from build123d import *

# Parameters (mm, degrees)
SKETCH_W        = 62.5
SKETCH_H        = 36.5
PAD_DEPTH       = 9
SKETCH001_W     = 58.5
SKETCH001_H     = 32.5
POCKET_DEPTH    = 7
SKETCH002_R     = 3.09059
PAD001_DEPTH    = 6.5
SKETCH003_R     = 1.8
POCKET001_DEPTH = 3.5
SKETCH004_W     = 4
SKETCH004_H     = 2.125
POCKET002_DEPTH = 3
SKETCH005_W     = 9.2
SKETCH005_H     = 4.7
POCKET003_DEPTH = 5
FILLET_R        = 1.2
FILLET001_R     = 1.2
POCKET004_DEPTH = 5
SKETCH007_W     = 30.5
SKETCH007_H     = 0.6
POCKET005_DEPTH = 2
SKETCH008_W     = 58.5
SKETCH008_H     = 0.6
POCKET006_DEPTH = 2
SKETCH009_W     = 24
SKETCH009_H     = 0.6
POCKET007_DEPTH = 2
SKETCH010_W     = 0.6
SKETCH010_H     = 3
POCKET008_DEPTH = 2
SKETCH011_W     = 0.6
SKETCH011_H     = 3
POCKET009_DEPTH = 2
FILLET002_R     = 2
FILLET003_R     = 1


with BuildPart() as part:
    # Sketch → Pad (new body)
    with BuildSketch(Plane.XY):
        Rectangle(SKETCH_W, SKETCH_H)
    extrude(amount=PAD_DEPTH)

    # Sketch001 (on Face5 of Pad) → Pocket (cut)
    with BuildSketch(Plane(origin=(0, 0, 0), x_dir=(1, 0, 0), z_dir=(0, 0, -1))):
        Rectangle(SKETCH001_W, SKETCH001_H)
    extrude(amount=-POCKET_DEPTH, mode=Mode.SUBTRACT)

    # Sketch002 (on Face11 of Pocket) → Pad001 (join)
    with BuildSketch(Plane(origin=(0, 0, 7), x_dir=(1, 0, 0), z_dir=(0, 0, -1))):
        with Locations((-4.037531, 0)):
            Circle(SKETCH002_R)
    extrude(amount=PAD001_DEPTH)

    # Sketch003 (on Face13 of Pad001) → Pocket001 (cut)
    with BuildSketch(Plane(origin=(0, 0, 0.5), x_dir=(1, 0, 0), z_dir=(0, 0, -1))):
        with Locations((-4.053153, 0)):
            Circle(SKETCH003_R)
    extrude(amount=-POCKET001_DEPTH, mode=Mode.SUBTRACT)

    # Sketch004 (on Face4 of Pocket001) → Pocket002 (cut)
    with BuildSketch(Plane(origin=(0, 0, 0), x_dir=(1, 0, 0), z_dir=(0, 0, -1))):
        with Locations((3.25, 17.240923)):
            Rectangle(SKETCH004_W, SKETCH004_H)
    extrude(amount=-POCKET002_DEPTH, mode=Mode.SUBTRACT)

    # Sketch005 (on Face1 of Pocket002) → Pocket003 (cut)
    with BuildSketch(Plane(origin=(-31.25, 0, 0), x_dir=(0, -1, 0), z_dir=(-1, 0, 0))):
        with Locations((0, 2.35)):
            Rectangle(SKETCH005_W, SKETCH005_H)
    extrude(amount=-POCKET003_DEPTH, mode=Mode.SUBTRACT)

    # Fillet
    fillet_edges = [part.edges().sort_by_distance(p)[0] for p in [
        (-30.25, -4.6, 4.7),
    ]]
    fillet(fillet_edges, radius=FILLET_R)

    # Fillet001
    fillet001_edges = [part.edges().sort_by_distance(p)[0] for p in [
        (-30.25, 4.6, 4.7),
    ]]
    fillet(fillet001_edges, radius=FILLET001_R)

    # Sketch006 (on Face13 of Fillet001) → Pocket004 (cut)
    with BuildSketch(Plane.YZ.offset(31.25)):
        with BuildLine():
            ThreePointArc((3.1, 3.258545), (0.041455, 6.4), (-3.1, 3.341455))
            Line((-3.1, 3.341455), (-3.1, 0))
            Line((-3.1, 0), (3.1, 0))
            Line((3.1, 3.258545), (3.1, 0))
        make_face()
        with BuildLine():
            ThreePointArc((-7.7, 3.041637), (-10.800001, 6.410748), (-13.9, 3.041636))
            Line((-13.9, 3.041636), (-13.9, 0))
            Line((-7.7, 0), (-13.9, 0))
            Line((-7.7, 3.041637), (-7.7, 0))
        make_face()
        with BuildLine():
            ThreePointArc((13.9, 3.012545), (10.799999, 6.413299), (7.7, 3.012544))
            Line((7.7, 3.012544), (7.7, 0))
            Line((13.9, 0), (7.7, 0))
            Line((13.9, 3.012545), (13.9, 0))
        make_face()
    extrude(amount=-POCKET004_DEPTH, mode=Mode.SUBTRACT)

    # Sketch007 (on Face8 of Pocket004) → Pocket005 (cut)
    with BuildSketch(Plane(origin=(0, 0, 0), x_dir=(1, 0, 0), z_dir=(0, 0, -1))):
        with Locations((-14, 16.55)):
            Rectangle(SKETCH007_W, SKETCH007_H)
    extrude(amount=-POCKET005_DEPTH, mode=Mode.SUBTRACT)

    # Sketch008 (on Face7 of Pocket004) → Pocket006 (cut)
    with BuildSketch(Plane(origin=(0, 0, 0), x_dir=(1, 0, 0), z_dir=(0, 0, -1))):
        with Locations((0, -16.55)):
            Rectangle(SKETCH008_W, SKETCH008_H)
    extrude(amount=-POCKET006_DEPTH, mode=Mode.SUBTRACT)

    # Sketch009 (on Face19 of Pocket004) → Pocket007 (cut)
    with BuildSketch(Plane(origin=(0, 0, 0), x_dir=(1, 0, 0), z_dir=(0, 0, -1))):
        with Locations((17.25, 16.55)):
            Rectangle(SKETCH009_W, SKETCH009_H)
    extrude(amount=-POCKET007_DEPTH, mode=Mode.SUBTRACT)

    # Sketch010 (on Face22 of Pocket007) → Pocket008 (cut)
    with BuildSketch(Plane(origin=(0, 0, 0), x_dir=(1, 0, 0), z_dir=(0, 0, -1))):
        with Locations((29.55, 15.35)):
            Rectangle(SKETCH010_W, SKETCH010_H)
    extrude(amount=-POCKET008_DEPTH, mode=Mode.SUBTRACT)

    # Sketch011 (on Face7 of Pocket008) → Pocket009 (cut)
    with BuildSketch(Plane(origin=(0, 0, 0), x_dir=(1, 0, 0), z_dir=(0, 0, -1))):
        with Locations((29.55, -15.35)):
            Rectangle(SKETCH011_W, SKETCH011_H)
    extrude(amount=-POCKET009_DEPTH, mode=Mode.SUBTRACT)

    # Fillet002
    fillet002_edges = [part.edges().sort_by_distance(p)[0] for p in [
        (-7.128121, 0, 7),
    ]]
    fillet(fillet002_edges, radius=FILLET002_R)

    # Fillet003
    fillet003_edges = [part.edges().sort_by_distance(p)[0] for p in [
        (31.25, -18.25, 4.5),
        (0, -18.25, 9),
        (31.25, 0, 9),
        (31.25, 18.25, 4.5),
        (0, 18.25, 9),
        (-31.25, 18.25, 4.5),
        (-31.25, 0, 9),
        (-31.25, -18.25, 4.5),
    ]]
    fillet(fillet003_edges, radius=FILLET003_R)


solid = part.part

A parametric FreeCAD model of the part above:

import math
import FreeCAD as App
import Part
import Sketcher
Q = App.Units.Quantity


def edges_at(feature, points):
    """Names of the edges that pass closest to the given points."""
    edges = feature.Shape.Edges
    near = lambda p: min(range(len(edges)), key=lambda i: edges[i].distToShape(Part.Vertex(*p))[0])
    return sorted({f"Edge{near(p) + 1}" for p in points})


def add_polygon(sketch, points):
    """Adds a closed chain of lines whose ends are joined by coincident constraints."""
    first, n = sketch.GeometryCount, len(points)
    for a, b in zip(points, points[1:] + points[:1]):
        sketch.addGeometry(Part.LineSegment(App.Vector(*a, 0), App.Vector(*b, 0)), False)
    for i in range(n):
        sketch.addConstraint(Sketcher.Constraint("Coincident", first + i, 2, first + (i + 1) % n, 1))

doc = App.newDocument("Part")
body = doc.addObject("PartDesign::Body", "Body")

# Sketch on XY plane
sketch1 = body.newObject("Sketcher::SketchObject", "Sketch")
sketch1.AttachmentSupport = (doc.getObject("XY_Plane"), [""])
sketch1.MapMode = "FlatFace"
add_polygon(sketch1, [(-31, 18), (-31, -18), (31, -18), (31, 18)])  # lines 0-3
sketch1.addConstraint(Sketcher.Constraint("Vertical", 0))
sketch1.addConstraint(Sketcher.Constraint("Horizontal", 1))
sketch1.addConstraint(Sketcher.Constraint("Vertical", 2))
sketch1.addConstraint(Sketcher.Constraint("Horizontal", 3))
sketch1.addConstraint(Sketcher.Constraint("Symmetric", 0, 2, 2, 2, -1, 1))
sketch1.addConstraint(Sketcher.Constraint("DistanceX", 1, 1, 1, 2, Q("62.5 mm")))
sketch1.addConstraint(Sketcher.Constraint("DistanceY", 0, 2, 0, 1, Q("36.5 mm")))
pad1 = body.newObject("PartDesign::Pad", "Pad")
pad1.Profile = sketch1
pad1.Length = 9

# Sketch on XY plane
sketch2 = body.newObject("Sketcher::SketchObject", "Sketch001")
sketch2.AttachmentSupport = (doc.getObject("XY_Plane"), [""])
sketch2.MapMode = "FlatFace"
add_polygon(sketch2, [(-29, -16), (-29, 16), (29, 16), (29, -16)])  # lines 0-3
sketch2.addConstraint(Sketcher.Constraint("Vertical", 0))
sketch2.addConstraint(Sketcher.Constraint("Horizontal", 1))
sketch2.addConstraint(Sketcher.Constraint("Vertical", 2))
sketch2.addConstraint(Sketcher.Constraint("Horizontal", 3))
sketch2.addConstraint(Sketcher.Constraint("Symmetric", 0, 2, 2, 2, -1, 1))
sketch2.addConstraint(Sketcher.Constraint("DistanceX", 1, 1, 1, 2, Q("58.5 mm")))
sketch2.addConstraint(Sketcher.Constraint("DistanceY", 0, 1, 0, 2, Q("32.5 mm")))
pocket1 = body.newObject("PartDesign::Pocket", "Pocket")
pocket1.Profile = sketch2
pocket1.Length = 7
pocket1.Reversed = True

# Sketch on XY plane
sketch3 = body.newObject("Sketcher::SketchObject", "Sketch002")
sketch3.AttachmentSupport = (doc.getObject("XY_Plane"), [""])
sketch3.MapMode = "FlatFace"
sketch3.AttachmentOffset = App.Placement(App.Vector(0, 0, 7), App.Rotation())
sketch3.addGeometry(Part.Circle(App.Vector(-4, 0, 0), App.Vector(0, 0, 1), 3.1), False)
sketch3.addConstraint(Sketcher.Constraint("PointOnObject", 0, 3, -1))
sketch3.addConstraint(Sketcher.Constraint("Diameter", 0, Q("6.18118 mm")))
sketch3.addConstraint(Sketcher.Constraint("DistanceX", 0, 3, -1, 1, Q("4.037531 mm")))
pad2 = body.newObject("PartDesign::Pad", "Pad001")
pad2.Profile = sketch3
pad2.Length = 6.5
pad2.Reversed = True

# Sketch on XY plane
sketch4 = body.newObject("Sketcher::SketchObject", "Sketch003")
sketch4.AttachmentSupport = (doc.getObject("XY_Plane"), [""])
sketch4.MapMode = "FlatFace"
sketch4.AttachmentOffset = App.Placement(App.Vector(0, 0, 0.5), App.Rotation())
sketch4.addGeometry(Part.Circle(App.Vector(-4.1, 0, 0), App.Vector(0, 0, 1), 1.8), False)
sketch4.addConstraint(Sketcher.Constraint("PointOnObject", 0, 3, -1))
sketch4.addConstraint(Sketcher.Constraint("Diameter", 0, Q("3.6 mm")))
sketch4.addConstraint(Sketcher.Constraint("DistanceX", 0, 3, -1, 1, Q("4.053153 mm")))
pocket2 = body.newObject("PartDesign::Pocket", "Pocket001")
pocket2.Profile = sketch4
pocket2.Length = 3.5
pocket2.Reversed = True

# Sketch on XY plane
sketch5 = body.newObject("Sketcher::SketchObject", "Sketch004")
sketch5.AttachmentSupport = (doc.getObject("XY_Plane"), [""])
sketch5.MapMode = "FlatFace"
add_polygon(sketch5, [(1.2, -18.3), (1.2, -16.2), (5.2, -16.2), (5.2, -18.3)])  # lines 0-3
sketch5.addConstraint(Sketcher.Constraint("Vertical", 0))
sketch5.addConstraint(Sketcher.Constraint("Horizontal", 1))
sketch5.addConstraint(Sketcher.Constraint("Vertical", 2))
sketch5.addConstraint(Sketcher.Constraint("Horizontal", 3))
sketch5.addConstraint(Sketcher.Constraint("DistanceX", 1, 1, 1, 2, Q("4 mm")))
sketch5.addConstraint(Sketcher.Constraint("DistanceY", 0, 1, 0, 2, Q("2.125 mm")))
sketch5.addConstraint(Sketcher.Constraint("DistanceX", -1, 1, 0, 2, Q("1.25 mm")))
sketch5.addConstraint(Sketcher.Constraint("DistanceY", 0, 2, -1, 1, Q("16.178423 mm")))
pocket3 = body.newObject("PartDesign::Pocket", "Pocket002")
pocket3.Profile = sketch5
pocket3.Length = 3
pocket3.Reversed = True

# Sketch on YZ plane
sketch6 = body.newObject("Sketcher::SketchObject", "Sketch005")
sketch6.AttachmentSupport = (doc.getObject("YZ_Plane"), [""])
sketch6.MapMode = "FlatFace"
sketch6.AttachmentOffset = App.Placement(App.Vector(0, 0, -31.25), App.Rotation())
add_polygon(sketch6, [(4.6, 4.7), (4.6, 0), (-4.6, 0), (-4.6, 4.7)])  # lines 0-3
sketch6.addConstraint(Sketcher.Constraint("Vertical", 0))
sketch6.addConstraint(Sketcher.Constraint("Horizontal", 1))
sketch6.addConstraint(Sketcher.Constraint("Vertical", 2))
sketch6.addConstraint(Sketcher.Constraint("Horizontal", 3))
sketch6.addConstraint(Sketcher.Constraint("Symmetric", 0, 2, 1, 2, -1, 1))
sketch6.addConstraint(Sketcher.Constraint("DistanceX", 1, 2, 1, 1, Q("9.2 mm")))
sketch6.addConstraint(Sketcher.Constraint("DistanceY", 0, 2, 0, 1, Q("4.7 mm")))
pocket4 = body.newObject("PartDesign::Pocket", "Pocket003")
pocket4.Profile = sketch6
pocket4.Length = 5
pocket4.Reversed = True
doc.recompute()

fillet = body.newObject("PartDesign::Fillet", "Fillet")
fillet.Base = (pocket4, edges_at(pocket4, [(-30.25, -4.6, 4.7)]))
fillet.Radius = 1.2
doc.recompute()

fillet2 = body.newObject("PartDesign::Fillet", "Fillet001")
fillet2.Base = (fillet, edges_at(fillet, [(-30.25, 4.6, 4.7)]))
fillet2.Radius = 1.2

# Sketch on YZ plane
sketch7 = body.newObject("Sketcher::SketchObject", "Sketch006")
sketch7.AttachmentSupport = (doc.getObject("YZ_Plane"), [""])
sketch7.MapMode = "FlatFace"
sketch7.AttachmentOffset = App.Placement(App.Vector(0, 0, 31.25), App.Rotation())
sketch7.addGeometry(Part.ArcOfCircle(Part.Circle(App.Vector(0, 3.3, 0), App.Vector(0, 0, 1), 3.1), math.radians(-1), math.radians(179)), False)
sketch7.addGeometry(Part.LineSegment(App.Vector(-3.1, 3.3, 0), App.Vector(-3.1, 0, 0)), False)
sketch7.addGeometry(Part.LineSegment(App.Vector(-3.1, 0, 0), App.Vector(3.1, 0, 0)), False)
sketch7.addGeometry(Part.LineSegment(App.Vector(3.1, 0, 0), App.Vector(3.1, 3.3, 0)), False)
sketch7.addGeometry(Part.ArcOfCircle(Part.Circle(App.Vector(-10.8, 3.3, 0), App.Vector(0, 0, 1), 3.1), math.radians(-5), math.radians(185)), False)
sketch7.addGeometry(Part.LineSegment(App.Vector(-13.9, 3, 0), App.Vector(-13.9, 0, 0)), False)
sketch7.addGeometry(Part.LineSegment(App.Vector(-13.9, 0, 0), App.Vector(-7.7, 0, 0)), False)
sketch7.addGeometry(Part.LineSegment(App.Vector(-7.7, 0, 0), App.Vector(-7.7, 3, 0)), False)
sketch7.addGeometry(Part.ArcOfCircle(Part.Circle(App.Vector(10.8, 3.3, 0), App.Vector(0, 0, 1), 3.1), math.radians(-5), math.radians(185)), False)
sketch7.addGeometry(Part.LineSegment(App.Vector(7.7, 3, 0), App.Vector(7.7, 0, 0)), False)
sketch7.addGeometry(Part.LineSegment(App.Vector(7.7, 0, 0), App.Vector(13.9, 0, 0)), False)
sketch7.addGeometry(Part.LineSegment(App.Vector(13.9, 0, 0), App.Vector(13.9, 3, 0)), False)
sketch7.addConstraint(Sketcher.Constraint("Coincident", 0, 2, 1, 1))
sketch7.addConstraint(Sketcher.Constraint("Coincident", 1, 2, 2, 1))
sketch7.addConstraint(Sketcher.Constraint("Coincident", 2, 2, 3, 1))
sketch7.addConstraint(Sketcher.Constraint("Coincident", 3, 2, 0, 1))
sketch7.addConstraint(Sketcher.Constraint("Coincident", 4, 2, 5, 1))
sketch7.addConstraint(Sketcher.Constraint("Coincident", 5, 2, 6, 1))
sketch7.addConstraint(Sketcher.Constraint("Coincident", 6, 2, 7, 1))
sketch7.addConstraint(Sketcher.Constraint("Coincident", 7, 2, 4, 1))
sketch7.addConstraint(Sketcher.Constraint("Coincident", 8, 2, 9, 1))
sketch7.addConstraint(Sketcher.Constraint("Coincident", 9, 2, 10, 1))
sketch7.addConstraint(Sketcher.Constraint("Coincident", 10, 2, 11, 1))
sketch7.addConstraint(Sketcher.Constraint("Coincident", 11, 2, 8, 1))
sketch7.addConstraint(Sketcher.Constraint("Vertical", 1))
sketch7.addConstraint(Sketcher.Constraint("Horizontal", 2))
sketch7.addConstraint(Sketcher.Constraint("Vertical", 3))
sketch7.addConstraint(Sketcher.Constraint("Vertical", 5))
sketch7.addConstraint(Sketcher.Constraint("Horizontal", 6))
sketch7.addConstraint(Sketcher.Constraint("Vertical", 7))
sketch7.addConstraint(Sketcher.Constraint("Vertical", 9))
sketch7.addConstraint(Sketcher.Constraint("Horizontal", 10))
sketch7.addConstraint(Sketcher.Constraint("Vertical", 11))
sketch7.addConstraint(Sketcher.Constraint("Symmetric", 1, 2, 2, 2, -1, 1))
sketch7.addConstraint(Sketcher.Constraint("Symmetric", 6, 2, 9, 2, -1, 1))
sketch7.addConstraint(Sketcher.Constraint("Symmetric", 4, 3, 8, 3, -2))
sketch7.addConstraint(Sketcher.Constraint("Symmetric", 5, 2, 10, 2, -2))
sketch7.addConstraint(Sketcher.Constraint("PointOnObject", 0, 3, -2))
sketch7.addConstraint(Sketcher.Constraint("Horizontal", 0, 3, 4, 3))
sketch7.addConstraint(Sketcher.Constraint("Horizontal", 4, 2, 7, 2))
sketch7.addConstraint(Sketcher.Constraint("Equal", 2, 6))
sketch7.addConstraint(Sketcher.Constraint("DistanceX", 2, 1, 2, 2, Q("6.2 mm")))
sketch7.addConstraint(Sketcher.Constraint("DistanceX", 4, 2, 3, 2, Q("17 mm")))
sketch7.addConstraint(Sketcher.Constraint("DistanceY", -1, 1, 0, 3, Q("3.3 mm")))
sketch7.addConstraint(Sketcher.Constraint("Radius", 8, Q("3.113299 mm")))
sketch7.addConstraint(Sketcher.Constraint("Radius", 0, Q("3.100277 mm")))
sketch7.addConstraint(Sketcher.Constraint("Radius", 4, Q("3.110748 mm")))
pocket5 = body.newObject("PartDesign::Pocket", "Pocket004")
pocket5.Profile = sketch7
pocket5.Length = 5

# Sketch on XY plane
sketch8 = body.newObject("Sketcher::SketchObject", "Sketch007")
sketch8.AttachmentSupport = (doc.getObject("XY_Plane"), [""])
sketch8.MapMode = "FlatFace"
add_polygon(sketch8, [(-29.2, -16.9), (-29.2, -16.2), (1.2, -16.2), (1.2, -16.9)])  # lines 0-3
sketch8.addConstraint(Sketcher.Constraint("Vertical", 0))
sketch8.addConstraint(Sketcher.Constraint("Horizontal", 1))
sketch8.addConstraint(Sketcher.Constraint("Vertical", 2))
sketch8.addConstraint(Sketcher.Constraint("Horizontal", 3))
sketch8.addConstraint(Sketcher.Constraint("DistanceX", 1, 1, 1, 2, Q("30.5 mm")))
sketch8.addConstraint(Sketcher.Constraint("DistanceY", 0, 1, 0, 2, Q("0.6 mm")))
sketch8.addConstraint(Sketcher.Constraint("DistanceX", 0, 2, -1, 1, Q("29.25 mm")))
sketch8.addConstraint(Sketcher.Constraint("DistanceY", 0, 2, -1, 1, Q("16.25 mm")))
pocket6 = body.newObject("PartDesign::Pocket", "Pocket005")
pocket6.Profile = sketch8
pocket6.Length = 2
pocket6.Reversed = True

# Sketch on XY plane
sketch9 = body.newObject("Sketcher::SketchObject", "Sketch008")
sketch9.AttachmentSupport = (doc.getObject("XY_Plane"), [""])
sketch9.MapMode = "FlatFace"
add_polygon(sketch9, [(-29.2, 16.2), (-29.2, 16.9), (29.2, 16.9), (29.2, 16.2)])  # lines 0-3
sketch9.addConstraint(Sketcher.Constraint("Vertical", 0))
sketch9.addConstraint(Sketcher.Constraint("Horizontal", 1))
sketch9.addConstraint(Sketcher.Constraint("Vertical", 2))
sketch9.addConstraint(Sketcher.Constraint("Horizontal", 3))
sketch9.addConstraint(Sketcher.Constraint("DistanceX", 1, 1, 1, 2, Q("58.5 mm")))
sketch9.addConstraint(Sketcher.Constraint("DistanceY", 0, 1, 0, 2, Q("0.6 mm")))
sketch9.addConstraint(Sketcher.Constraint("DistanceX", 0, 2, -1, 1, Q("29.25 mm")))
sketch9.addConstraint(Sketcher.Constraint("DistanceY", -1, 1, 0, 2, Q("16.85 mm")))
pocket7 = body.newObject("PartDesign::Pocket", "Pocket006")
pocket7.Profile = sketch9
pocket7.Length = 2
pocket7.Reversed = True

# Sketch on XY plane
sketch10 = body.newObject("Sketcher::SketchObject", "Sketch009")
sketch10.AttachmentSupport = (doc.getObject("XY_Plane"), [""])
sketch10.MapMode = "FlatFace"
add_polygon(sketch10, [(5.2, -16.9), (5.2, -16.2), (29.2, -16.2), (29.2, -16.9)])  # lines 0-3
sketch10.addConstraint(Sketcher.Constraint("Vertical", 0))
sketch10.addConstraint(Sketcher.Constraint("Horizontal", 1))
sketch10.addConstraint(Sketcher.Constraint("Vertical", 2))
sketch10.addConstraint(Sketcher.Constraint("Horizontal", 3))
sketch10.addConstraint(Sketcher.Constraint("DistanceX", 1, 1, 1, 2, Q("24 mm")))
sketch10.addConstraint(Sketcher.Constraint("DistanceY", 0, 1, 0, 2, Q("0.6 mm")))
sketch10.addConstraint(Sketcher.Constraint("DistanceX", -1, 1, 0, 2, Q("5.25 mm")))
sketch10.addConstraint(Sketcher.Constraint("DistanceY", 0, 2, -1, 1, Q("16.25 mm")))
pocket8 = body.newObject("PartDesign::Pocket", "Pocket007")
pocket8.Profile = sketch10
pocket8.Length = 2
pocket8.Reversed = True

# Sketch on XY plane
sketch11 = body.newObject("Sketcher::SketchObject", "Sketch010")
sketch11.AttachmentSupport = (doc.getObject("XY_Plane"), [""])
sketch11.MapMode = "FlatFace"
add_polygon(sketch11, [(29.2, -16.9), (29.2, -13.8), (29.9, -13.8), (29.9, -16.9)])  # lines 0-3
sketch11.addConstraint(Sketcher.Constraint("Vertical", 0))
sketch11.addConstraint(Sketcher.Constraint("Horizontal", 1))
sketch11.addConstraint(Sketcher.Constraint("Vertical", 2))
sketch11.addConstraint(Sketcher.Constraint("Horizontal", 3))
sketch11.addConstraint(Sketcher.Constraint("DistanceY", 0, 1, 0, 2, Q("3 mm")))
sketch11.addConstraint(Sketcher.Constraint("DistanceX", 1, 1, 1, 2, Q("0.6 mm")))
sketch11.addConstraint(Sketcher.Constraint("DistanceX", -1, 1, 0, 2, Q("29.25 mm")))
sketch11.addConstraint(Sketcher.Constraint("DistanceY", 0, 2, -1, 1, Q("13.85 mm")))
pocket9 = body.newObject("PartDesign::Pocket", "Pocket008")
pocket9.Profile = sketch11
pocket9.Length = 2
pocket9.Reversed = True

# Sketch on XY plane
sketch12 = body.newObject("Sketcher::SketchObject", "Sketch011")
sketch12.AttachmentSupport = (doc.getObject("XY_Plane"), [""])
sketch12.MapMode = "FlatFace"
add_polygon(sketch12, [(29.2, 13.8), (29.2, 16.9), (29.9, 16.9), (29.9, 13.8)])  # lines 0-3
sketch12.addConstraint(Sketcher.Constraint("Vertical", 0))
sketch12.addConstraint(Sketcher.Constraint("Horizontal", 1))
sketch12.addConstraint(Sketcher.Constraint("Vertical", 2))
sketch12.addConstraint(Sketcher.Constraint("Horizontal", 3))
sketch12.addConstraint(Sketcher.Constraint("DistanceY", 0, 1, 0, 2, Q("3 mm")))
sketch12.addConstraint(Sketcher.Constraint("DistanceX", 1, 1, 1, 2, Q("0.6 mm")))
sketch12.addConstraint(Sketcher.Constraint("DistanceX", -1, 1, 0, 2, Q("29.25 mm")))
sketch12.addConstraint(Sketcher.Constraint("DistanceY", -1, 1, 0, 2, Q("16.85 mm")))
pocket10 = body.newObject("PartDesign::Pocket", "Pocket009")
pocket10.Profile = sketch12
pocket10.Length = 2
pocket10.Reversed = True
doc.recompute()

fillet3 = body.newObject("PartDesign::Fillet", "Fillet002")
fillet3.Base = (pocket10, edges_at(pocket10, [(-7.128, 0, 7)]))
fillet3.Radius = 2
doc.recompute()

fillet4 = body.newObject("PartDesign::Fillet", "Fillet003")
fillet4.Base = (fillet3, edges_at(fillet3, [
    (31.25, -18.25, 4.5),
    (0, -18.25, 9),
    (31.25, 0, 9),
    (31.25, 18.25, 4.5),
    (0, 18.25, 9),
    (-31.25, 18.25, 4.5),
    (-31.25, 0, 9),
    (-31.25, -18.25, 4.5),
]))
fillet4.Radius = 1

doc.recompute()
